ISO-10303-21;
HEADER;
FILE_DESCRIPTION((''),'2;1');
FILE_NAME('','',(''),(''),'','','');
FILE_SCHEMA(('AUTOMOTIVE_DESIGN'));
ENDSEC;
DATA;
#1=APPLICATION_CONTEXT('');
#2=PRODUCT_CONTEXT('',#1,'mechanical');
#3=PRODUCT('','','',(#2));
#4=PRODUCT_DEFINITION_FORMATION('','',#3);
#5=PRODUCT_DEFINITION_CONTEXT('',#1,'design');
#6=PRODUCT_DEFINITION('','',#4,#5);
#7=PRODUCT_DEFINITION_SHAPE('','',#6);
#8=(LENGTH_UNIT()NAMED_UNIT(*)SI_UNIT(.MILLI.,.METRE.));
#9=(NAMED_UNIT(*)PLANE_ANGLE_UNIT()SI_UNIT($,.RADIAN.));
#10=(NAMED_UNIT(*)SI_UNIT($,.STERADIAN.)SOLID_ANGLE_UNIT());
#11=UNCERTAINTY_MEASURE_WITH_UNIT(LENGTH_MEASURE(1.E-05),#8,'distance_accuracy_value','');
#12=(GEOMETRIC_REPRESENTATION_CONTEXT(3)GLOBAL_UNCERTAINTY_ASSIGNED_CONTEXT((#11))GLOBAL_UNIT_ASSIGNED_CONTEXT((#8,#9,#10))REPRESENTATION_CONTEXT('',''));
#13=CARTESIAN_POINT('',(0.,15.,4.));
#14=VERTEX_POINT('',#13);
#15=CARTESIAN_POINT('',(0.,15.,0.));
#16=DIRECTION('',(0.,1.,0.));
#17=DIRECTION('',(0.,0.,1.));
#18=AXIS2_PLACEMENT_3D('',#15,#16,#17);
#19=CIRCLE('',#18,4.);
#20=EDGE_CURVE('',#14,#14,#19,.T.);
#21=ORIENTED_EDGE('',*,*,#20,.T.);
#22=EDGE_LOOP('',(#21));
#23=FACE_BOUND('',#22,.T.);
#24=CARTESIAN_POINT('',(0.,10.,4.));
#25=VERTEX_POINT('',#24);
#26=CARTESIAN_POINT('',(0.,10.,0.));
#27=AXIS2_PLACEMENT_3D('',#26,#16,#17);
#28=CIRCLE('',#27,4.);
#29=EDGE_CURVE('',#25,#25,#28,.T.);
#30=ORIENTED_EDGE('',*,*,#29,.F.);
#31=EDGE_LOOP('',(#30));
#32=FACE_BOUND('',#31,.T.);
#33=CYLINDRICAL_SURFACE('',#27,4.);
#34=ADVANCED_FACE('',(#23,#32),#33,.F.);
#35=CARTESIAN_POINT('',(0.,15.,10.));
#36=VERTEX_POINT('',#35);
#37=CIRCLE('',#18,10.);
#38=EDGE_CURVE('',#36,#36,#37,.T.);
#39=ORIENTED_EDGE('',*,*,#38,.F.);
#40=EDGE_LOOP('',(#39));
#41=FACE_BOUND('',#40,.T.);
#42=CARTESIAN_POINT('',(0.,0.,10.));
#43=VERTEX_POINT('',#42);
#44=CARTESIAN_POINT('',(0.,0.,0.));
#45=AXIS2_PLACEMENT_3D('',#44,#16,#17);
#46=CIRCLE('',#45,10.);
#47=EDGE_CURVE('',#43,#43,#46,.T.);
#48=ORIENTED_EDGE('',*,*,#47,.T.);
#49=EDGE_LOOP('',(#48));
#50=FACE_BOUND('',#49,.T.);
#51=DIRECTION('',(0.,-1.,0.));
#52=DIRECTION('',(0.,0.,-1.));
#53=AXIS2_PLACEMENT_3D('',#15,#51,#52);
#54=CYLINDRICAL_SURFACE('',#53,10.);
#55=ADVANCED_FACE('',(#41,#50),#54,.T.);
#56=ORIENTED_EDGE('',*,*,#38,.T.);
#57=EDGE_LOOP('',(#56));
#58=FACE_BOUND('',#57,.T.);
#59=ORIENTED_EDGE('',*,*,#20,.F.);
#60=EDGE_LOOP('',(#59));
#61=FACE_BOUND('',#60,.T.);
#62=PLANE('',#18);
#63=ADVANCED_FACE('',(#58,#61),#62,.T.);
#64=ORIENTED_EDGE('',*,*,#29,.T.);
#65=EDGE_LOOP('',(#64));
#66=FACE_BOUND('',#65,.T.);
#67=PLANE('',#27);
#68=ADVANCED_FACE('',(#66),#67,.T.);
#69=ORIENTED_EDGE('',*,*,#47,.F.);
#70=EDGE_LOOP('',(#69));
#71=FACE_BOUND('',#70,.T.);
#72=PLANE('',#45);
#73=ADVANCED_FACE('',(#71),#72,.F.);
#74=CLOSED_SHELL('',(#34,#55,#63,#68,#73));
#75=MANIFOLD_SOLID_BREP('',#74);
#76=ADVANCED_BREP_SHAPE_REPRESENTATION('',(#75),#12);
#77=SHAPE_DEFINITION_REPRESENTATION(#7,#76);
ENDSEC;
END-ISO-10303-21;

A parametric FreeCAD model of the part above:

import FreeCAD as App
import Part
import Sketcher

V = App.Vector
Q = App.Units.Quantity

doc = App.newDocument("Part")
body = doc.addObject("PartDesign::Body", "Body")

# Sketch on XZ plane
sketch1 = doc.addObject("Sketcher::SketchObject", "Sketch")
body.addObject(sketch1)
sketch1.AttachmentSupport = (doc.XZ_Plane, [""])
sketch1.MapMode = "FlatFace"
sketch1.addGeometry(Part.Circle(V(0, 0, 0), V(0, 0, 1), 10), False)
sketch1.addConstraint([
    Sketcher.Constraint("Coincident", 0, 3, -1, 1),
    Sketcher.Constraint("Diameter", 0, Q("20 mm")),
])
pad1 = doc.addObject("PartDesign::Pad", "Pad")
body.addObject(pad1)
pad1.Profile = sketch1
pad1.Length = 15
pad1.Reversed = True

# Sketch on XZ plane
sketch2 = doc.addObject("Sketcher::SketchObject", "Sketch001")
body.addObject(sketch2)
sketch2.AttachmentSupport = (doc.XZ_Plane, [""])
sketch2.MapMode = "FlatFace"
sketch2.AttachmentOffset = App.Placement(V(0, 0, -15), App.Rotation())
sketch2.addGeometry(Part.Circle(V(0, 0, 0), V(0, 0, 1), 4), False)
sketch2.addConstraint([
    Sketcher.Constraint("Coincident", 0, 3, -1, 1),
    Sketcher.Constraint("Diameter", 0, Q("8 mm")),
])
pocket1 = doc.addObject("PartDesign::Pocket", "Pocket")
body.addObject(pocket1)
pocket1.Profile = sketch2
pocket1.Length = 5
pocket1.Reversed = True

doc.recompute()
